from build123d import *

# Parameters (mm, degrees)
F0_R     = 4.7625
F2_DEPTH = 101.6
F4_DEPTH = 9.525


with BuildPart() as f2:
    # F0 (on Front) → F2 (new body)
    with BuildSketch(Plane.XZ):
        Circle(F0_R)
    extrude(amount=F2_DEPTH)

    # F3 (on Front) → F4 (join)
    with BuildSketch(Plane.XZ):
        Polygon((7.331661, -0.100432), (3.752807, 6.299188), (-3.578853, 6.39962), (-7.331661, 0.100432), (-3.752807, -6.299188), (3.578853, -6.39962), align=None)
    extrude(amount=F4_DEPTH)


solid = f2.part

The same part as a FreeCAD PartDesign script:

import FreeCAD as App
import Part
import Sketcher
from FreeCAD import Vector
Q = App.Units.Quantity

doc = App.newDocument("Part")
body = doc.addObject("PartDesign::Body", "Body")

# Sketch on XZ plane
sketch1 = doc.addObject("Sketcher::SketchObject", "Sketch")
body.addObject(sketch1)
sketch1.AttachmentSupport = (doc.XZ_Plane, [""])
sketch1.MapMode = "FlatFace"
sketch1.addGeometry(Part.Circle(Vector(0, 0, 0), Vector(0, 0, 1), 4.7625), False)
sketch1.addConstraint(Sketcher.Constraint("Coincident", 0, 3, -1, 1))
sketch1.addConstraint(Sketcher.Constraint("Diameter", 0, Q("0.375 in")))
pad1 = doc.addObject("PartDesign::Pad", "Pad")
body.addObject(pad1)
pad1.Profile = sketch1
pad1.Length = Q("4 in")

# Sketch on XZ plane
sketch2 = doc.addObject("Sketcher::SketchObject", "Sketch001")
body.addObject(sketch2)
sketch2.AttachmentSupport = (doc.XZ_Plane, [""])
sketch2.MapMode = "FlatFace"
sketch2.addGeometry(Part.LineSegment(Vector(7.331661, -0.100432, 0), Vector(3.752807, 6.299188, 0)), False)
sketch2.addGeometry(Part.LineSegment(Vector(3.752807, 6.299188, 0), Vector(-3.578853, 6.39962, 0)), False)
sketch2.addGeometry(Part.LineSegment(Vector(-3.578853, 6.39962, 0), Vector(-7.331661, 0.100432, 0)), False)
sketch2.addGeometry(Part.LineSegment(Vector(-7.331661, 0.100432, 0), Vector(-3.752807, -6.299188, 0)), False)
sketch2.addGeometry(Part.LineSegment(Vector(-3.752807, -6.299188, 0), Vector(3.578853, -6.39962, 0)), False)
sketch2.addGeometry(Part.LineSegment(Vector(3.578853, -6.39962, 0), Vector(7.331661, -0.100432, 0)), False)
sketch2.addConstraint(Sketcher.Constraint("Coincident", 0, 2, 1, 1))
sketch2.addConstraint(Sketcher.Constraint("Coincident", 1, 2, 2, 1))
sketch2.addConstraint(Sketcher.Constraint("Coincident", 2, 2, 3, 1))
sketch2.addConstraint(Sketcher.Constraint("Coincident", 3, 2, 4, 1))
sketch2.addConstraint(Sketcher.Constraint("Coincident", 4, 2, 5, 1))
sketch2.addConstraint(Sketcher.Constraint("Coincident", 5, 2, 0, 1))
sketch2.addConstraint(Sketcher.Constraint("Symmetric", 0, 2, 3, 2, -1, 1))
sketch2.addConstraint(Sketcher.Constraint("Symmetric", 1, 2, 4, 2, -1, 1))
sketch2.addConstraint(Sketcher.Constraint("Symmetric", 2, 2, 5, 2, -1, 1))
sketch2.addConstraint(Sketcher.Constraint("Equal", 0, 1))
sketch2.addConstraint(Sketcher.Constraint("Equal", 1, 2))
sketch2.addConstraint(Sketcher.Constraint("Distance", 0, Q("7.332348 mm")))
sketch2.addConstraint(Sketcher.Constraint("DistanceY", -1, 1, 1, 2, Q("6.39962 mm")))
sketch2.addConstraint(Sketcher.Constraint("DistanceX", 2, 2, -1, 1, Q("7.331661 mm")))
sketch2.addConstraint(Sketcher.Constraint("DistanceY", -1, 1, 2, 2, Q("0.100432 mm")))
pad2 = doc.addObject("PartDesign::Pad", "Pad001")
body.addObject(pad2)
pad2.Profile = sketch2
pad2.Length = Q("0.375 in")

doc.recompute()
